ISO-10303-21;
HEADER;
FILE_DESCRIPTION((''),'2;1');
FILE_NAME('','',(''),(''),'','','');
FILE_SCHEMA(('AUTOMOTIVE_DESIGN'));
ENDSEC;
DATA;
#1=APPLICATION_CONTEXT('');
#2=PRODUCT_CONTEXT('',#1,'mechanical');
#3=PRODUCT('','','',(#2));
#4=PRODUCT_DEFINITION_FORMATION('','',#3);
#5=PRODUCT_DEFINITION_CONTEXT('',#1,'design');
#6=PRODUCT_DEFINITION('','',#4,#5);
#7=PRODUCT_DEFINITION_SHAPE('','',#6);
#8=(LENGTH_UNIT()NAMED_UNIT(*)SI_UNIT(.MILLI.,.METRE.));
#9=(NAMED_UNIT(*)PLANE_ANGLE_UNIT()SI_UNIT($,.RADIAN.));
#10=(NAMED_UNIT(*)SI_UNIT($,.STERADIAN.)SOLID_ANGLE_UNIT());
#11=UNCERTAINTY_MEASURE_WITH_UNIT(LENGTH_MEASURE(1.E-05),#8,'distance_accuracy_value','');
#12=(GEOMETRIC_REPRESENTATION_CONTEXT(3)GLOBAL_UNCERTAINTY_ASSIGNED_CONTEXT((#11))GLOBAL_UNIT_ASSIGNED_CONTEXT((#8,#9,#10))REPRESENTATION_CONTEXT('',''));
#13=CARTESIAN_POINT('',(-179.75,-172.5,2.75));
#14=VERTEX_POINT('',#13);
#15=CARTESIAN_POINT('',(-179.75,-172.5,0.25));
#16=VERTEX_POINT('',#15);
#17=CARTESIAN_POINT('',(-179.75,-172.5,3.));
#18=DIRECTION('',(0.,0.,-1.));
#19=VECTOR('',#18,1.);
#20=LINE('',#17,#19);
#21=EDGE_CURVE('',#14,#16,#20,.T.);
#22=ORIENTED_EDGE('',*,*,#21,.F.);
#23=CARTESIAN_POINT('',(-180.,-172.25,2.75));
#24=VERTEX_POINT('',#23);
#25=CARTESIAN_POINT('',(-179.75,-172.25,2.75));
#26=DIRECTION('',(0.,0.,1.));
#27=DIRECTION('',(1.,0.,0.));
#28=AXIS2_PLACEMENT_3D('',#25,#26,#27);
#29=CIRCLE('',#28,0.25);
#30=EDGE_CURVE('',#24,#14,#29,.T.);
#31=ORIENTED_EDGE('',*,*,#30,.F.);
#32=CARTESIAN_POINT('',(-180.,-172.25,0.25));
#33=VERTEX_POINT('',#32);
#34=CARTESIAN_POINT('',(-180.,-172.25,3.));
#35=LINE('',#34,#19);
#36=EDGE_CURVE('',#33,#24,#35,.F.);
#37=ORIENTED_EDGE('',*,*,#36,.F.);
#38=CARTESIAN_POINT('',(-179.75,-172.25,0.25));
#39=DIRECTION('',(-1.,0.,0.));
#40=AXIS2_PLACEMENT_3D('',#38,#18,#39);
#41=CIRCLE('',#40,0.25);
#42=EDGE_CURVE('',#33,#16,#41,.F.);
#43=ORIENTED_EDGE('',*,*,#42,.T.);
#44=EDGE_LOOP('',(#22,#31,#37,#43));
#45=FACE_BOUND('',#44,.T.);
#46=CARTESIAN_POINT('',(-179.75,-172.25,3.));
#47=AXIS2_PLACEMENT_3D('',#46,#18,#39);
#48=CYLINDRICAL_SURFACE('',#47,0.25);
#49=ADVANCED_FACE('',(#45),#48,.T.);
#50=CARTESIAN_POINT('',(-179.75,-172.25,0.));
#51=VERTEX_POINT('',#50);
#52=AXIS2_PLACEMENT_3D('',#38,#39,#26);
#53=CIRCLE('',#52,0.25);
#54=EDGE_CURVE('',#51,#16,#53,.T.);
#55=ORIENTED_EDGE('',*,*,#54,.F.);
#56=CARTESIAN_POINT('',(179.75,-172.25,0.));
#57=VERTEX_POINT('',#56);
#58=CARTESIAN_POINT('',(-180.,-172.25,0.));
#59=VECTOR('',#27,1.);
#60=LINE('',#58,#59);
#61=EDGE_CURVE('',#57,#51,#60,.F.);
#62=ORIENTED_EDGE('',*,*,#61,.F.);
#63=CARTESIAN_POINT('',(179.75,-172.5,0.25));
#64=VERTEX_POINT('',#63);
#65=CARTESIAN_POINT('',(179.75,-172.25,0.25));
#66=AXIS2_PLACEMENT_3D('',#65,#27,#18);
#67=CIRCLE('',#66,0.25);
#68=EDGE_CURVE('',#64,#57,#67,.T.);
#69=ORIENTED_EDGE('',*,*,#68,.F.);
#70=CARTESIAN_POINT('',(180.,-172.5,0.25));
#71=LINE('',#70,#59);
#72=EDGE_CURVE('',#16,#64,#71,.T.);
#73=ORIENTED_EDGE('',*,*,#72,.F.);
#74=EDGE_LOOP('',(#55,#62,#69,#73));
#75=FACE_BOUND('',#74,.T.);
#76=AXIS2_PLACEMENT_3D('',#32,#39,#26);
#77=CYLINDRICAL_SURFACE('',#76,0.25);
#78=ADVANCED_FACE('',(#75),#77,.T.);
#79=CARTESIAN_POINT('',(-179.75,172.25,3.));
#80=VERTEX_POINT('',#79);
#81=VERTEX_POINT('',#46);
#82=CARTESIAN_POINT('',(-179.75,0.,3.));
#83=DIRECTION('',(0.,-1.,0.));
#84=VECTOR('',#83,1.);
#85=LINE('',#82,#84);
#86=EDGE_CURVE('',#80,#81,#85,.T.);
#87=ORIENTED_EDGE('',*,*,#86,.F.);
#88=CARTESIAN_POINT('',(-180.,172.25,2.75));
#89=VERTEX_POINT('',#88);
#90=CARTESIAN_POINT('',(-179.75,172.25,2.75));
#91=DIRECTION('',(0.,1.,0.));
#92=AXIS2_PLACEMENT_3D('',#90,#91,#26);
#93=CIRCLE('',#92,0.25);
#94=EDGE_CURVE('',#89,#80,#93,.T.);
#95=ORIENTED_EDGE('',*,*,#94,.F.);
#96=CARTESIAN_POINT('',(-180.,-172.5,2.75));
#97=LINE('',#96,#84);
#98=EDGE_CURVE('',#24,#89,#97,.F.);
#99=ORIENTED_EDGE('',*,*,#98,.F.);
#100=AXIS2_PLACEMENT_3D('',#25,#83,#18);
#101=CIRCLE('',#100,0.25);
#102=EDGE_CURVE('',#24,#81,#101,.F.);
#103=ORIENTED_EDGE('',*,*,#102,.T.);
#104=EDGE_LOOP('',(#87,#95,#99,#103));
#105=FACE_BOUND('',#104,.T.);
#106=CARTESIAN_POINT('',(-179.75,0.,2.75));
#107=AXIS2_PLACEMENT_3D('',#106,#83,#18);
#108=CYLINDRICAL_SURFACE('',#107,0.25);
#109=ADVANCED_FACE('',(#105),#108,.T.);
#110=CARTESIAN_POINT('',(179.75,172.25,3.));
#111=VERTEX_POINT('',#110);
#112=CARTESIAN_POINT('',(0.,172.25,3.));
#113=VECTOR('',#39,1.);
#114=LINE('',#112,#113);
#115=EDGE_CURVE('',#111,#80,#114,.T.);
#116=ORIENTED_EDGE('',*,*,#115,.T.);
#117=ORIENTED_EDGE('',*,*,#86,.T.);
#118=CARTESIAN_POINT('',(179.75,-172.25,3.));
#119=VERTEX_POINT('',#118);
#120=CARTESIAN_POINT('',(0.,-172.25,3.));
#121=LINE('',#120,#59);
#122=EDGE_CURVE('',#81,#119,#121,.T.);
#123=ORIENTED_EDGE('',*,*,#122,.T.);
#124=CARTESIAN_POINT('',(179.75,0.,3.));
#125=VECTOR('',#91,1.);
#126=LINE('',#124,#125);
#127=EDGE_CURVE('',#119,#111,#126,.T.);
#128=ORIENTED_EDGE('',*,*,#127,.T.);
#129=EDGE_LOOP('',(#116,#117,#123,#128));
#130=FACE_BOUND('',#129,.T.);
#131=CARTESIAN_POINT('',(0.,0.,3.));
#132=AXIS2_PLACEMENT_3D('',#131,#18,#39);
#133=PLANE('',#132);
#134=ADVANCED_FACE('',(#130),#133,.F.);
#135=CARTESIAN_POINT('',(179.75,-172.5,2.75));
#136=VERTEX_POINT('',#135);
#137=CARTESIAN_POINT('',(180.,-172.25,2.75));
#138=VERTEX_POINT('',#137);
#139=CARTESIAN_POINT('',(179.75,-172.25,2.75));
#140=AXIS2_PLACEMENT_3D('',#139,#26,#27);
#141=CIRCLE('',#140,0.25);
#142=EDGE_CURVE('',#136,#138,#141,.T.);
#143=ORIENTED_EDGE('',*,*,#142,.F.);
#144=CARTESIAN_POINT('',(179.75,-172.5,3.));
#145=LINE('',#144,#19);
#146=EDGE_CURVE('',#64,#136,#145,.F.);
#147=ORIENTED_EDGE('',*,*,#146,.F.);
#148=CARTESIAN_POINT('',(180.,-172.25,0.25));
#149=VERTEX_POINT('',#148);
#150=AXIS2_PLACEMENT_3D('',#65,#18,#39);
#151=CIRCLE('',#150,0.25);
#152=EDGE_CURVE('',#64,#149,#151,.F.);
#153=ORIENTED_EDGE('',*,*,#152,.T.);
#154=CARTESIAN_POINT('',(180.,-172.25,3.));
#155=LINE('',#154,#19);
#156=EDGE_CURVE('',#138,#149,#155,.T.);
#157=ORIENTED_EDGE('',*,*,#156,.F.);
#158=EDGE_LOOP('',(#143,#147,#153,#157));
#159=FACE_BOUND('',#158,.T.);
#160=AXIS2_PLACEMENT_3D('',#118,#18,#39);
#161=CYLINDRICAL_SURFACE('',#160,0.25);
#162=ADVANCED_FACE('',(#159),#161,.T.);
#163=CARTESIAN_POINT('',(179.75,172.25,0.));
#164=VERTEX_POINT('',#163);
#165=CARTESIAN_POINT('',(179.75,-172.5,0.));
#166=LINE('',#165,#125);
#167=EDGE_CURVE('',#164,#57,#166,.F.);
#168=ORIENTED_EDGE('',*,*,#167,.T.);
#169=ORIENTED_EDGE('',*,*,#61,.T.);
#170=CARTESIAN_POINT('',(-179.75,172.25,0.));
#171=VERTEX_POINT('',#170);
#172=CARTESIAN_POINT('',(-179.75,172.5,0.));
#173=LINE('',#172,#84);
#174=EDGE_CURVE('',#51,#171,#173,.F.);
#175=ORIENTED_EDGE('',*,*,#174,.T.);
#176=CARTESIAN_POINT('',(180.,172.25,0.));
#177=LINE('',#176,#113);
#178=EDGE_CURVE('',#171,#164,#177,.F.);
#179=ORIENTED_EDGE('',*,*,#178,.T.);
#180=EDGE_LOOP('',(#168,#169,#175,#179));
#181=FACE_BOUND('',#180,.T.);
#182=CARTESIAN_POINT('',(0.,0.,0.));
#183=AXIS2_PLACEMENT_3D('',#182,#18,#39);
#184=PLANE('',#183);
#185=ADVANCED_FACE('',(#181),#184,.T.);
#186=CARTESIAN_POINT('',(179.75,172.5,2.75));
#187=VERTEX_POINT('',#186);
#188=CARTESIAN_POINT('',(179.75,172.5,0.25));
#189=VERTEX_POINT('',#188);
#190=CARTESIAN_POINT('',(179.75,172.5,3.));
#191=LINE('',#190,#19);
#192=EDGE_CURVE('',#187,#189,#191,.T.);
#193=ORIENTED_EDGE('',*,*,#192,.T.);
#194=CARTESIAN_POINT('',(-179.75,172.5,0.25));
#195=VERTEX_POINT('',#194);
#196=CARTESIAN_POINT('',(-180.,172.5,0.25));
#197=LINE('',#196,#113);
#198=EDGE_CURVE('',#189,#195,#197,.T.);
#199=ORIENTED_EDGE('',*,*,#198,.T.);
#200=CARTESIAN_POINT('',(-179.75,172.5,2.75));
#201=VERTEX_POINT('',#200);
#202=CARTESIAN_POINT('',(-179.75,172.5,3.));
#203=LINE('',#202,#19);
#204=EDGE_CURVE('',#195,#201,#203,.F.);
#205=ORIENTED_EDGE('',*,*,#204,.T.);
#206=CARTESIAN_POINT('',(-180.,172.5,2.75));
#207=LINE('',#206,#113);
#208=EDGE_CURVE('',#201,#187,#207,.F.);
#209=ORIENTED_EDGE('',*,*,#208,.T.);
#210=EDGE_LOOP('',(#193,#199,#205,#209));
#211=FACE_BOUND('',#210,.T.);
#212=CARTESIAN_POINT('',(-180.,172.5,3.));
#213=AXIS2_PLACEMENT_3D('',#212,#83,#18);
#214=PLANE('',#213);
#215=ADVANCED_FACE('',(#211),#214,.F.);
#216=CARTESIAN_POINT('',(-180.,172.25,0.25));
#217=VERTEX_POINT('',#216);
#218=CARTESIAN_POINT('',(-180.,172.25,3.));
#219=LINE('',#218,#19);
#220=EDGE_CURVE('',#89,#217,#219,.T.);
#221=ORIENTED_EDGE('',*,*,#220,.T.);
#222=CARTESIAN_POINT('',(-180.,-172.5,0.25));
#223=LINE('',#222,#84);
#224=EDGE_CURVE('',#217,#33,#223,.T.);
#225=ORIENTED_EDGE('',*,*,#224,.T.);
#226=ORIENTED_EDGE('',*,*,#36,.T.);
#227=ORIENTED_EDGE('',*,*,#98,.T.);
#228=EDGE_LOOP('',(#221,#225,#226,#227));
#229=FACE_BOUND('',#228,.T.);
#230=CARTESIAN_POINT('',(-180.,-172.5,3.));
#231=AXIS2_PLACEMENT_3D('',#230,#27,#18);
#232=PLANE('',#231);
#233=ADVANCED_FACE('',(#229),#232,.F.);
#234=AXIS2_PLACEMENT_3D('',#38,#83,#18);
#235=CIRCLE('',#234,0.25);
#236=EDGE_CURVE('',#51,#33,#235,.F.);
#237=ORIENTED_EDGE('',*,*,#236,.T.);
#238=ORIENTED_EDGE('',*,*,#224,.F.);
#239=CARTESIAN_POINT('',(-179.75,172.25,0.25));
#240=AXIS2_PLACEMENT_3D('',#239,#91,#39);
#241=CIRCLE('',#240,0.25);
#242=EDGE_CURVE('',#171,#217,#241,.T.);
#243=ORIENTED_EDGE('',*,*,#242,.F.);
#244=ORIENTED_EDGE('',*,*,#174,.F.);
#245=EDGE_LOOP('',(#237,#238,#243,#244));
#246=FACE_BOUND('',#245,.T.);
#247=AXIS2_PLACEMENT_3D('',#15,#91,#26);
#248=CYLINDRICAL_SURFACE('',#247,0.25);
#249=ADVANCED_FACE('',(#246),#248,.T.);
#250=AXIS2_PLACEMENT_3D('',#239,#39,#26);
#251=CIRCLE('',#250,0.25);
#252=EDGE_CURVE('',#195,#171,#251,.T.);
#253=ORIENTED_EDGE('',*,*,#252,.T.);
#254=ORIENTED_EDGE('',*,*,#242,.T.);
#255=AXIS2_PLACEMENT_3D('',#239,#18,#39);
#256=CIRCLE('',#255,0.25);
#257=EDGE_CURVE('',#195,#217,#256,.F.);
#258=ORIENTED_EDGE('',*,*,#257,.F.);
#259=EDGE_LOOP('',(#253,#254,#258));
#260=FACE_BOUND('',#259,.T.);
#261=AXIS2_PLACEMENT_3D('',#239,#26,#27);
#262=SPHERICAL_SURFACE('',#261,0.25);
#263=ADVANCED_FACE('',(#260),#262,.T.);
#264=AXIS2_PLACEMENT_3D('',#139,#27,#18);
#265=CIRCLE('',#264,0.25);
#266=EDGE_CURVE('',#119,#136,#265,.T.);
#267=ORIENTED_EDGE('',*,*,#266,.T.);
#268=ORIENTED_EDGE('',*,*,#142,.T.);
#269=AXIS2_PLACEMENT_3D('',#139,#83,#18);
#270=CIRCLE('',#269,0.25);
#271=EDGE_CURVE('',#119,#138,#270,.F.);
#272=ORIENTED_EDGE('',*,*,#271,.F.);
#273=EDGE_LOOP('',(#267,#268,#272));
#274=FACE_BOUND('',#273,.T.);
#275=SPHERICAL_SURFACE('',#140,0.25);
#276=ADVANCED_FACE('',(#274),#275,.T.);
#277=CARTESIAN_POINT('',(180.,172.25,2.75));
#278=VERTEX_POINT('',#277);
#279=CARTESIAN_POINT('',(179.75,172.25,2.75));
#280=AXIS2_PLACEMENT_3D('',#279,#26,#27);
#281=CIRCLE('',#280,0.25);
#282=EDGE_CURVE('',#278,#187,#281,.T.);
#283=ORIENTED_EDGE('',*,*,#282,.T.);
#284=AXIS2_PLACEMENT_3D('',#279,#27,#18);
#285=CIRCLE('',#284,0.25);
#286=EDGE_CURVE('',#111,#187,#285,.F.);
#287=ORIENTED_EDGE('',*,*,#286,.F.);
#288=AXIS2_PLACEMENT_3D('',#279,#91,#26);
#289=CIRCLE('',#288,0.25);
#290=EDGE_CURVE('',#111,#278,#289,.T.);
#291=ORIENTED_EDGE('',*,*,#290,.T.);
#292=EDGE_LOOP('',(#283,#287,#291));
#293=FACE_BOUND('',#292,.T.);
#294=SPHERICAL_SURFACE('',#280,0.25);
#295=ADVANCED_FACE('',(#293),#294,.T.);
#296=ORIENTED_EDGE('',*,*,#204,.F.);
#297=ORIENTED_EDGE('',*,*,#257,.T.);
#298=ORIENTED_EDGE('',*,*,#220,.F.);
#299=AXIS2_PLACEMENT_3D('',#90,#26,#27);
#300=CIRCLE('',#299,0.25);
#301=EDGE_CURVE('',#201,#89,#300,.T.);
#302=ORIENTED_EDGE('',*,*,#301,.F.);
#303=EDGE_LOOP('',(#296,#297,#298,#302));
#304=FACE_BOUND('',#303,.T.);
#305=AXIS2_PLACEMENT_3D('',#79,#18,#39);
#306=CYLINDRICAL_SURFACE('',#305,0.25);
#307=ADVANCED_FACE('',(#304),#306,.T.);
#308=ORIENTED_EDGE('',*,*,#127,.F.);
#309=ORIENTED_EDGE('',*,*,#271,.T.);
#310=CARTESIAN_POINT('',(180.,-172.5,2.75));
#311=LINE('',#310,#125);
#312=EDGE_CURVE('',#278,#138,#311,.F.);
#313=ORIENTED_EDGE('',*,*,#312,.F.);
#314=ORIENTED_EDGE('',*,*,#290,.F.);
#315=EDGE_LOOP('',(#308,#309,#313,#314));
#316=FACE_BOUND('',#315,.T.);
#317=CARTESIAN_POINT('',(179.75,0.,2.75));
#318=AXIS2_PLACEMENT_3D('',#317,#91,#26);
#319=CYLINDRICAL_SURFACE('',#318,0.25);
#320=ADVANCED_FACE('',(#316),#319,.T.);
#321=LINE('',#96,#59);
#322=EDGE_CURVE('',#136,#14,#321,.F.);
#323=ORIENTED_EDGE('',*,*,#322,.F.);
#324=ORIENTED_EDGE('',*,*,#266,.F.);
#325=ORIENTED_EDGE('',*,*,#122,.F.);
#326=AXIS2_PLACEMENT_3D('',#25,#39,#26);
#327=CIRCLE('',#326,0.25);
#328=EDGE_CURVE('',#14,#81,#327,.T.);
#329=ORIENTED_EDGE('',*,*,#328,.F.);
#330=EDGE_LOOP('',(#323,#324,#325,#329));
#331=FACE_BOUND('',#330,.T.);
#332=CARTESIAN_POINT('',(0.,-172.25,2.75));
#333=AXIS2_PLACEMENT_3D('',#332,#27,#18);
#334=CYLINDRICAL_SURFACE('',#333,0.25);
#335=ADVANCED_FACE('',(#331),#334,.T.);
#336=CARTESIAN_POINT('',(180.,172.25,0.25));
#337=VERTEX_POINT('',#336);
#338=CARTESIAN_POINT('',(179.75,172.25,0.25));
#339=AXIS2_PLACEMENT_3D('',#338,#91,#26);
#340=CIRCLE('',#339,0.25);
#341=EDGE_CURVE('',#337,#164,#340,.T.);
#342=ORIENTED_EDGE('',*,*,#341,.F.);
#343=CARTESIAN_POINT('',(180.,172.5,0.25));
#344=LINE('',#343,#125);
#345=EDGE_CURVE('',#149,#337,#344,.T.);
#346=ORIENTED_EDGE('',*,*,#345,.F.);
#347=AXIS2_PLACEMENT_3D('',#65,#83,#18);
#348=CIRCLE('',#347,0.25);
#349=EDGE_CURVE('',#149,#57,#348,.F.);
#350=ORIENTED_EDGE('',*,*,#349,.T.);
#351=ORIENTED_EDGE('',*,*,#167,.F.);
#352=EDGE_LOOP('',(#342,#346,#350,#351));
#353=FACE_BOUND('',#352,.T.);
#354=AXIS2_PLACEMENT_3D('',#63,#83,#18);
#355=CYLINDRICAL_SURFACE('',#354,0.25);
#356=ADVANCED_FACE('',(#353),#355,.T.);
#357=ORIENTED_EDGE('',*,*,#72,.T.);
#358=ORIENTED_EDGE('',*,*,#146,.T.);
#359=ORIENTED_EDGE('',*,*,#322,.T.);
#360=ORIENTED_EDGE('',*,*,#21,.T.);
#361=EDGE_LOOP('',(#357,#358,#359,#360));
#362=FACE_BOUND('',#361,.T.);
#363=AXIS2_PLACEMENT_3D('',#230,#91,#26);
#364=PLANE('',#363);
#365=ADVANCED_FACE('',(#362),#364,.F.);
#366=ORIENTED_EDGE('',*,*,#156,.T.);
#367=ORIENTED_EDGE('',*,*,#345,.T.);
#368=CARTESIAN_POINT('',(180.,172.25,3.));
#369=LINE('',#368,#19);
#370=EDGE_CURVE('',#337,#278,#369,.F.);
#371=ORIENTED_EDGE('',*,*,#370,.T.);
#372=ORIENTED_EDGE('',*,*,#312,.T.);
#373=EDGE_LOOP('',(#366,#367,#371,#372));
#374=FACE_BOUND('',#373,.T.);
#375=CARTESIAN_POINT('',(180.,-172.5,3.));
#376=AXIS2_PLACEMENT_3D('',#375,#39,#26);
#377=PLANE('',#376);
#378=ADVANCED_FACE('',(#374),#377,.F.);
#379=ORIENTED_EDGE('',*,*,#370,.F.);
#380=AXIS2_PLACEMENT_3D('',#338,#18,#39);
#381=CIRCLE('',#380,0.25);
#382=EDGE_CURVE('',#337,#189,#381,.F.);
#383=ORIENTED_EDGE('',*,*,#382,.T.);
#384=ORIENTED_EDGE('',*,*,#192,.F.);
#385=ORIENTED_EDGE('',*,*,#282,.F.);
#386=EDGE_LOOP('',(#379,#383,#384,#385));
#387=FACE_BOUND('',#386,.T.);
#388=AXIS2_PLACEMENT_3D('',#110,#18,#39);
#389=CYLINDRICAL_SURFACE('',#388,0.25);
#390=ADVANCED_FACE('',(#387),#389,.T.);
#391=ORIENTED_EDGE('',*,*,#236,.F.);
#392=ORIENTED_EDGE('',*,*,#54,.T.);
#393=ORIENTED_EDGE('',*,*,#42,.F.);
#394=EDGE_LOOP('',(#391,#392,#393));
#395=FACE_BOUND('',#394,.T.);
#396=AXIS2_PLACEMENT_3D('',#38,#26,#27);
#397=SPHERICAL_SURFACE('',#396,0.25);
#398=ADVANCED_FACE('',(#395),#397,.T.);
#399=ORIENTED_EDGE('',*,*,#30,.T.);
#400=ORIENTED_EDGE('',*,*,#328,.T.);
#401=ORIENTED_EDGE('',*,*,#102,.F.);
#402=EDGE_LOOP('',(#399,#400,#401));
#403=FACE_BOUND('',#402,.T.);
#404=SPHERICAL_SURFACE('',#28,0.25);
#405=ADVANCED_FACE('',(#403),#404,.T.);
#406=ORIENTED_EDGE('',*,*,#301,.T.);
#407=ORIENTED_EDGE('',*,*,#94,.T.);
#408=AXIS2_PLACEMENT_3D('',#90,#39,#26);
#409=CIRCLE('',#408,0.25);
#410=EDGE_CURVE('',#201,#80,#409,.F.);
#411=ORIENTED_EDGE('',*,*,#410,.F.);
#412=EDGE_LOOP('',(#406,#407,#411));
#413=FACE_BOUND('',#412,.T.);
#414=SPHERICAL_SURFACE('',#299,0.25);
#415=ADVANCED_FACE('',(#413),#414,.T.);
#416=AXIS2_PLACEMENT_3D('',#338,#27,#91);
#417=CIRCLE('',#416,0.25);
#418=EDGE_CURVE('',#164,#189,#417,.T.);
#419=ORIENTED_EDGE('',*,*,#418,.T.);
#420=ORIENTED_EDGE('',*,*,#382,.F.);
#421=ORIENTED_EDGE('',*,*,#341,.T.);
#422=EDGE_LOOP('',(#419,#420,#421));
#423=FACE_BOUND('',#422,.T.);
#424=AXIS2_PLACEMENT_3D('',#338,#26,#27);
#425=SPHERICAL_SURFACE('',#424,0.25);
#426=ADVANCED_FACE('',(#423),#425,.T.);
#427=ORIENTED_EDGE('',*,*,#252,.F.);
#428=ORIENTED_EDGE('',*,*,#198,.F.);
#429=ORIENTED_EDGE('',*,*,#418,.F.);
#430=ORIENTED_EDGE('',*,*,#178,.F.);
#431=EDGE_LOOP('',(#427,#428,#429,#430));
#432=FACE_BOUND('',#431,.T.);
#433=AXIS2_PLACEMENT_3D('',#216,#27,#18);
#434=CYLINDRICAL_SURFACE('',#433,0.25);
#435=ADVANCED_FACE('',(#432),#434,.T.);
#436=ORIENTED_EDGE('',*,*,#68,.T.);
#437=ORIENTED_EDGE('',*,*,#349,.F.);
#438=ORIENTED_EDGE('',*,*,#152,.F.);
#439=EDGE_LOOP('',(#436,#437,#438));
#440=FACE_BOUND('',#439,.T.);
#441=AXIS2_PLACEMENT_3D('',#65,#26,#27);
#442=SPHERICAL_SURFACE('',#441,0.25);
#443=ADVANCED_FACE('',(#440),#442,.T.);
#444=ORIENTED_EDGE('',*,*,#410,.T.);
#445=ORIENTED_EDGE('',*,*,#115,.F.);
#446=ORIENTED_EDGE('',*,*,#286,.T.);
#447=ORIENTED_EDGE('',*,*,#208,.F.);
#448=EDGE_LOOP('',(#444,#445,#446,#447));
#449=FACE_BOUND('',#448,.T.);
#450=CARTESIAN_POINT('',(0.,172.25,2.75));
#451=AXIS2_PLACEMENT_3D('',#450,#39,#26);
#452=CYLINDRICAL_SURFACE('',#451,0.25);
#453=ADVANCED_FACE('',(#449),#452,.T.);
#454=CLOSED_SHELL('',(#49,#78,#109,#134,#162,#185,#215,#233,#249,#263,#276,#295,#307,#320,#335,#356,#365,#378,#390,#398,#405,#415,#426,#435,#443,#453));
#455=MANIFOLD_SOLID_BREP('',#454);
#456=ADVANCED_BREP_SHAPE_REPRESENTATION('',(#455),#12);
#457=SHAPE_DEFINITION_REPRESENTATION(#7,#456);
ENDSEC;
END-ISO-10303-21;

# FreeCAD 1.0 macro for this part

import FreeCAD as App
import Part
import Sketcher
from FreeCAD import Vector
Q = App.Units.Quantity


def add_polygon(sketch, points):
    """Adds a closed chain of lines whose ends are joined by coincident constraints."""
    first, n = sketch.GeometryCount, len(points)
    for a, b in zip(points, points[1:] + points[:1]):
        sketch.addGeometry(Part.LineSegment(App.Vector(*a, 0), App.Vector(*b, 0)), False)
    for i in range(n):
        sketch.addConstraint(Sketcher.Constraint("Coincident", first + i, 2, first + (i + 1) % n, 1))

doc = App.newDocument("Part")
body = doc.addObject("PartDesign::Body", "Body")

# Sketch on XY plane
sketch1 = body.newObject("Sketcher::SketchObject", "Sketch")
sketch1.AttachmentSupport = (doc.getObject("XY_Plane"), [""])
sketch1.MapMode = "FlatFace"
add_polygon(sketch1, [(-180, 172), (-180, -172), (180, -172), (180, 172)])  # lines 0-3
sketch1.addConstraint(Sketcher.Constraint("Vertical", 0))
sketch1.addConstraint(Sketcher.Constraint("Horizontal", 1))
sketch1.addConstraint(Sketcher.Constraint("Vertical", 2))
sketch1.addConstraint(Sketcher.Constraint("Horizontal", 3))
sketch1.addConstraint(Sketcher.Constraint("Symmetric", 0, 2, 2, 2, -1, 1))
sketch1.addConstraint(Sketcher.Constraint("DistanceX", 1, 1, 1, 2, Q("360 mm")))
sketch1.addConstraint(Sketcher.Constraint("DistanceY", 0, 2, 0, 1, Q("345 mm")))
pad1 = body.newObject("PartDesign::Pad", "Pad")
pad1.Profile = sketch1
pad1.Length = 3
doc.recompute()

fillet = body.newObject("PartDesign::Fillet", "Fillet")
fillet.Base = (pad1, ["Edge1"])
fillet.UseAllEdges = True
fillet.Radius = 0.25

doc.recompute()
